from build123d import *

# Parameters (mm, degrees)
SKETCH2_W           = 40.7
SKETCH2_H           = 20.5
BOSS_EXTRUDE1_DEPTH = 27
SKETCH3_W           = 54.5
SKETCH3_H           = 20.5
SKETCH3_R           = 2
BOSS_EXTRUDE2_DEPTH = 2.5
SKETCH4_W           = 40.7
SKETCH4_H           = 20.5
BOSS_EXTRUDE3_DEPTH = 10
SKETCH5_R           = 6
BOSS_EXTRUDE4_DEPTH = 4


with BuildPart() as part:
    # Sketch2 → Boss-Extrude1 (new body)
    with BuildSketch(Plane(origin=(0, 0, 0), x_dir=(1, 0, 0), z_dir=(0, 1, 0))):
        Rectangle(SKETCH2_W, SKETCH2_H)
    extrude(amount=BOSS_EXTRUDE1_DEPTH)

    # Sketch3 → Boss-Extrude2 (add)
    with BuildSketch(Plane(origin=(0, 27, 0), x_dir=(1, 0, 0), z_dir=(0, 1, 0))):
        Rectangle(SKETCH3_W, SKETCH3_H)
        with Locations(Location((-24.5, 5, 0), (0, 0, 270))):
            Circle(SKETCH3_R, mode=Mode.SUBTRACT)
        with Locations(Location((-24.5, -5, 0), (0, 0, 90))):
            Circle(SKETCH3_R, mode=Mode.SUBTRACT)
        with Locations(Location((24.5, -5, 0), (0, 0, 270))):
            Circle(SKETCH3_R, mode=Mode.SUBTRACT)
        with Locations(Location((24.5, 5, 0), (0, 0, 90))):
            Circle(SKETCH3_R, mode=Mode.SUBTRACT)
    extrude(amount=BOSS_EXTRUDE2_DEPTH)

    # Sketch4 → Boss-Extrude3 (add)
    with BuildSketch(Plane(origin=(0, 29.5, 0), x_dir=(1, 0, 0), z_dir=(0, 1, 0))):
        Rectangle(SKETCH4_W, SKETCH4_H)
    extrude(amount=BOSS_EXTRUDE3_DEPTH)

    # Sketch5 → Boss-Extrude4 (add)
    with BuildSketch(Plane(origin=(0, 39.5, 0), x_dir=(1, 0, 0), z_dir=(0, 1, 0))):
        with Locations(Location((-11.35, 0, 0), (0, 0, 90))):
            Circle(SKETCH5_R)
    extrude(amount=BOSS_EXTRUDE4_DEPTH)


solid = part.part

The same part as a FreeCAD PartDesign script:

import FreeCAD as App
import Part
import Sketcher


def add_polygon(sketch, points):
    """Adds a closed chain of lines whose ends are joined by coincident constraints."""
    first, n = sketch.GeometryCount, len(points)
    for a, b in zip(points, points[1:] + points[:1]):
        sketch.addGeometry(Part.LineSegment(App.Vector(*a, 0), App.Vector(*b, 0)), False)
    for i in range(n):
        sketch.addConstraint(Sketcher.Constraint("Coincident", first + i, 2, first + (i + 1) % n, 1))

doc = App.newDocument("Part")
params = doc.addObject("Spreadsheet::Sheet", "Params")
for row, (alias, value) in enumerate([
    ("sketch1_width", "40.7 mm"),
    ("sketch1_height", "20.5 mm"),
    ("pad1_length", "27 mm"),
    ("sketch2_diameter", "4 mm"),
    ("sketch2_width", "54.5 mm"),
    ("sketch2_height", "20.5 mm"),
    ("pad2_length", "2.5 mm"),
    ("sketch3_width", "40.7 mm"),
    ("sketch3_height", "20.5 mm"),
    ("pad3_length", "10 mm"),
    ("sketch4_diameter", "12 mm"),
    ("pad4_length", "4 mm"),
], start=1):
    params.set(f"A{row}", alias)
    params.set(f"B{row}", "=" + value)
    params.setAlias(f"B{row}", alias)

body = doc.addObject("PartDesign::Body", "Body")

# Sketch on XZ plane
sketch1 = doc.addObject("Sketcher::SketchObject", "Sketch")
body.addObject(sketch1)
sketch1.AttachmentSupport = (doc.XZ_Plane, [""])
sketch1.MapMode = "FlatFace"
add_polygon(sketch1, [(-20, -10), (-20, 10), (20, 10), (20, -10)])  # lines 0-3
sketch1.addConstraint(Sketcher.Constraint("Vertical", 0))
sketch1.addConstraint(Sketcher.Constraint("Horizontal", 1))
sketch1.addConstraint(Sketcher.Constraint("Vertical", 2))
sketch1.addConstraint(Sketcher.Constraint("Horizontal", 3))
sketch1.addConstraint(Sketcher.Constraint("Symmetric", 0, 2, 2, 2, -1, 1))
sketch1.addConstraint(Sketcher.Constraint("DistanceX", 1, 1, 1, 2, 40.7))
sketch1.addConstraint(Sketcher.Constraint("DistanceY", 0, 1, 0, 2, 20.5))
sketch1.setExpression("Constraints[9]", "Params.sketch1_width")
sketch1.setExpression("Constraints[10]", "Params.sketch1_height")
pad1 = doc.addObject("PartDesign::Pad", "Pad")
body.addObject(pad1)
pad1.Profile = sketch1
pad1.setExpression("Length", "Params.pad1_length")
pad1.Reversed = True

# Sketch on XZ plane
sketch2 = doc.addObject("Sketcher::SketchObject", "Sketch001")
body.addObject(sketch2)
sketch2.AttachmentSupport = (doc.XZ_Plane, [""])
sketch2.MapMode = "FlatFace"
sketch2.AttachmentOffset = App.Placement(App.Vector(0, 0, -27), App.Rotation())
add_polygon(sketch2, [(-27.2, -10.2), (-27.2, 10.2), (27.2, 10.2), (27.2, -10.2)])  # lines 0-3
sketch2.addGeometry(Part.Circle(App.Vector(-24.5, 5, 0), App.Vector(0, 0, 1), 2), False)  # 4
sketch2.addGeometry(Part.Circle(App.Vector(24.5, 5, 0), App.Vector(0, 0, 1), 2), False)  # 5
sketch2.addGeometry(Part.Circle(App.Vector(-24.5, -5, 0), App.Vector(0, 0, 1), 2), False)  # 6
sketch2.addGeometry(Part.Circle(App.Vector(24.5, -5, 0), App.Vector(0, 0, 1), 2), False)  # 7
sketch2.addConstraint(Sketcher.Constraint("Vertical", 0))
sketch2.addConstraint(Sketcher.Constraint("Horizontal", 1))
sketch2.addConstraint(Sketcher.Constraint("Vertical", 2))
sketch2.addConstraint(Sketcher.Constraint("Horizontal", 3))
sketch2.addConstraint(Sketcher.Constraint("Equal", 4, 5))
sketch2.addConstraint(Sketcher.Constraint("Equal", 5, 6))
sketch2.addConstraint(Sketcher.Constraint("Equal", 6, 7))
sketch2.addConstraint(Sketcher.Constraint("Symmetric", 5, 3, 6, 3, -1, 1))
sketch2.addConstraint(Sketcher.Constraint("Symmetric", 4, 3, 7, 3, -1, 1))
sketch2.addConstraint(Sketcher.Constraint("Symmetric", 0, 2, 2, 2, -1, 1))
sketch2.addConstraint(Sketcher.Constraint("Symmetric", 4, 3, 5, 3, -2))
sketch2.addConstraint(Sketcher.Constraint("Diameter", 4, 4.0))
sketch2.addConstraint(Sketcher.Constraint("DistanceX", 1, 1, 1, 2, 54.5))
sketch2.addConstraint(Sketcher.Constraint("DistanceY", 0, 1, 0, 2, 20.5))
sketch2.addConstraint(Sketcher.Constraint("DistanceY", -1, 1, 4, 3, 5.0))
sketch2.addConstraint(Sketcher.Constraint("DistanceX", 4, 3, 5, 3, 49.0))
sketch2.setExpression("Constraints[15]", "Params.sketch2_diameter")
sketch2.setExpression("Constraints[16]", "Params.sketch2_width")
sketch2.setExpression("Constraints[17]", "Params.sketch2_height")
pad2 = doc.addObject("PartDesign::Pad", "Pad001")
body.addObject(pad2)
pad2.Profile = sketch2
pad2.setExpression("Length", "Params.pad2_length")
pad2.Reversed = True

# Sketch on XZ plane
sketch3 = doc.addObject("Sketcher::SketchObject", "Sketch002")
body.addObject(sketch3)
sketch3.AttachmentSupport = (doc.XZ_Plane, [""])
sketch3.MapMode = "FlatFace"
sketch3.AttachmentOffset = App.Placement(App.Vector(0, 0, -29.5), App.Rotation())
add_polygon(sketch3, [(-20, -10), (-20, 10), (20, 10), (20, -10)])  # lines 0-3
sketch3.addConstraint(Sketcher.Constraint("Vertical", 0))
sketch3.addConstraint(Sketcher.Constraint("Horizontal", 1))
sketch3.addConstraint(Sketcher.Constraint("Vertical", 2))
sketch3.addConstraint(Sketcher.Constraint("Horizontal", 3))
sketch3.addConstraint(Sketcher.Constraint("Symmetric", 0, 2, 2, 2, -1, 1))
sketch3.addConstraint(Sketcher.Constraint("DistanceX", 1, 1, 1, 2, 40.7))
sketch3.addConstraint(Sketcher.Constraint("DistanceY", 0, 1, 0, 2, 20.5))
sketch3.setExpression("Constraints[9]", "Params.sketch3_width")
sketch3.setExpression("Constraints[10]", "Params.sketch3_height")
pad3 = doc.addObject("PartDesign::Pad", "Pad002")
body.addObject(pad3)
pad3.Profile = sketch3
pad3.setExpression("Length", "Params.pad3_length")
pad3.Reversed = True

# Sketch on XZ plane
sketch4 = doc.addObject("Sketcher::SketchObject", "Sketch003")
body.addObject(sketch4)
sketch4.AttachmentSupport = (doc.XZ_Plane, [""])
sketch4.MapMode = "FlatFace"
sketch4.AttachmentOffset = App.Placement(App.Vector(0, 0, -39.5), App.Rotation())
sketch4.addGeometry(Part.Circle(App.Vector(-11, 0, 0), App.Vector(0, 0, 1), 6), False)
sketch4.addConstraint(Sketcher.Constraint("PointOnObject", 0, 3, -1))
sketch4.addConstraint(Sketcher.Constraint("Diameter", 0, 12.0))
sketch4.addConstraint(Sketcher.Constraint("DistanceX", 0, 3, -1, 1, 11.35))
sketch4.setExpression("Constraints[1]", "Params.sketch4_diameter")
pad4 = doc.addObject("PartDesign::Pad", "Pad003")
body.addObject(pad4)
pad4.Profile = sketch4
pad4.setExpression("Length", "Params.pad4_length")
pad4.Reversed = True

doc.recompute()
